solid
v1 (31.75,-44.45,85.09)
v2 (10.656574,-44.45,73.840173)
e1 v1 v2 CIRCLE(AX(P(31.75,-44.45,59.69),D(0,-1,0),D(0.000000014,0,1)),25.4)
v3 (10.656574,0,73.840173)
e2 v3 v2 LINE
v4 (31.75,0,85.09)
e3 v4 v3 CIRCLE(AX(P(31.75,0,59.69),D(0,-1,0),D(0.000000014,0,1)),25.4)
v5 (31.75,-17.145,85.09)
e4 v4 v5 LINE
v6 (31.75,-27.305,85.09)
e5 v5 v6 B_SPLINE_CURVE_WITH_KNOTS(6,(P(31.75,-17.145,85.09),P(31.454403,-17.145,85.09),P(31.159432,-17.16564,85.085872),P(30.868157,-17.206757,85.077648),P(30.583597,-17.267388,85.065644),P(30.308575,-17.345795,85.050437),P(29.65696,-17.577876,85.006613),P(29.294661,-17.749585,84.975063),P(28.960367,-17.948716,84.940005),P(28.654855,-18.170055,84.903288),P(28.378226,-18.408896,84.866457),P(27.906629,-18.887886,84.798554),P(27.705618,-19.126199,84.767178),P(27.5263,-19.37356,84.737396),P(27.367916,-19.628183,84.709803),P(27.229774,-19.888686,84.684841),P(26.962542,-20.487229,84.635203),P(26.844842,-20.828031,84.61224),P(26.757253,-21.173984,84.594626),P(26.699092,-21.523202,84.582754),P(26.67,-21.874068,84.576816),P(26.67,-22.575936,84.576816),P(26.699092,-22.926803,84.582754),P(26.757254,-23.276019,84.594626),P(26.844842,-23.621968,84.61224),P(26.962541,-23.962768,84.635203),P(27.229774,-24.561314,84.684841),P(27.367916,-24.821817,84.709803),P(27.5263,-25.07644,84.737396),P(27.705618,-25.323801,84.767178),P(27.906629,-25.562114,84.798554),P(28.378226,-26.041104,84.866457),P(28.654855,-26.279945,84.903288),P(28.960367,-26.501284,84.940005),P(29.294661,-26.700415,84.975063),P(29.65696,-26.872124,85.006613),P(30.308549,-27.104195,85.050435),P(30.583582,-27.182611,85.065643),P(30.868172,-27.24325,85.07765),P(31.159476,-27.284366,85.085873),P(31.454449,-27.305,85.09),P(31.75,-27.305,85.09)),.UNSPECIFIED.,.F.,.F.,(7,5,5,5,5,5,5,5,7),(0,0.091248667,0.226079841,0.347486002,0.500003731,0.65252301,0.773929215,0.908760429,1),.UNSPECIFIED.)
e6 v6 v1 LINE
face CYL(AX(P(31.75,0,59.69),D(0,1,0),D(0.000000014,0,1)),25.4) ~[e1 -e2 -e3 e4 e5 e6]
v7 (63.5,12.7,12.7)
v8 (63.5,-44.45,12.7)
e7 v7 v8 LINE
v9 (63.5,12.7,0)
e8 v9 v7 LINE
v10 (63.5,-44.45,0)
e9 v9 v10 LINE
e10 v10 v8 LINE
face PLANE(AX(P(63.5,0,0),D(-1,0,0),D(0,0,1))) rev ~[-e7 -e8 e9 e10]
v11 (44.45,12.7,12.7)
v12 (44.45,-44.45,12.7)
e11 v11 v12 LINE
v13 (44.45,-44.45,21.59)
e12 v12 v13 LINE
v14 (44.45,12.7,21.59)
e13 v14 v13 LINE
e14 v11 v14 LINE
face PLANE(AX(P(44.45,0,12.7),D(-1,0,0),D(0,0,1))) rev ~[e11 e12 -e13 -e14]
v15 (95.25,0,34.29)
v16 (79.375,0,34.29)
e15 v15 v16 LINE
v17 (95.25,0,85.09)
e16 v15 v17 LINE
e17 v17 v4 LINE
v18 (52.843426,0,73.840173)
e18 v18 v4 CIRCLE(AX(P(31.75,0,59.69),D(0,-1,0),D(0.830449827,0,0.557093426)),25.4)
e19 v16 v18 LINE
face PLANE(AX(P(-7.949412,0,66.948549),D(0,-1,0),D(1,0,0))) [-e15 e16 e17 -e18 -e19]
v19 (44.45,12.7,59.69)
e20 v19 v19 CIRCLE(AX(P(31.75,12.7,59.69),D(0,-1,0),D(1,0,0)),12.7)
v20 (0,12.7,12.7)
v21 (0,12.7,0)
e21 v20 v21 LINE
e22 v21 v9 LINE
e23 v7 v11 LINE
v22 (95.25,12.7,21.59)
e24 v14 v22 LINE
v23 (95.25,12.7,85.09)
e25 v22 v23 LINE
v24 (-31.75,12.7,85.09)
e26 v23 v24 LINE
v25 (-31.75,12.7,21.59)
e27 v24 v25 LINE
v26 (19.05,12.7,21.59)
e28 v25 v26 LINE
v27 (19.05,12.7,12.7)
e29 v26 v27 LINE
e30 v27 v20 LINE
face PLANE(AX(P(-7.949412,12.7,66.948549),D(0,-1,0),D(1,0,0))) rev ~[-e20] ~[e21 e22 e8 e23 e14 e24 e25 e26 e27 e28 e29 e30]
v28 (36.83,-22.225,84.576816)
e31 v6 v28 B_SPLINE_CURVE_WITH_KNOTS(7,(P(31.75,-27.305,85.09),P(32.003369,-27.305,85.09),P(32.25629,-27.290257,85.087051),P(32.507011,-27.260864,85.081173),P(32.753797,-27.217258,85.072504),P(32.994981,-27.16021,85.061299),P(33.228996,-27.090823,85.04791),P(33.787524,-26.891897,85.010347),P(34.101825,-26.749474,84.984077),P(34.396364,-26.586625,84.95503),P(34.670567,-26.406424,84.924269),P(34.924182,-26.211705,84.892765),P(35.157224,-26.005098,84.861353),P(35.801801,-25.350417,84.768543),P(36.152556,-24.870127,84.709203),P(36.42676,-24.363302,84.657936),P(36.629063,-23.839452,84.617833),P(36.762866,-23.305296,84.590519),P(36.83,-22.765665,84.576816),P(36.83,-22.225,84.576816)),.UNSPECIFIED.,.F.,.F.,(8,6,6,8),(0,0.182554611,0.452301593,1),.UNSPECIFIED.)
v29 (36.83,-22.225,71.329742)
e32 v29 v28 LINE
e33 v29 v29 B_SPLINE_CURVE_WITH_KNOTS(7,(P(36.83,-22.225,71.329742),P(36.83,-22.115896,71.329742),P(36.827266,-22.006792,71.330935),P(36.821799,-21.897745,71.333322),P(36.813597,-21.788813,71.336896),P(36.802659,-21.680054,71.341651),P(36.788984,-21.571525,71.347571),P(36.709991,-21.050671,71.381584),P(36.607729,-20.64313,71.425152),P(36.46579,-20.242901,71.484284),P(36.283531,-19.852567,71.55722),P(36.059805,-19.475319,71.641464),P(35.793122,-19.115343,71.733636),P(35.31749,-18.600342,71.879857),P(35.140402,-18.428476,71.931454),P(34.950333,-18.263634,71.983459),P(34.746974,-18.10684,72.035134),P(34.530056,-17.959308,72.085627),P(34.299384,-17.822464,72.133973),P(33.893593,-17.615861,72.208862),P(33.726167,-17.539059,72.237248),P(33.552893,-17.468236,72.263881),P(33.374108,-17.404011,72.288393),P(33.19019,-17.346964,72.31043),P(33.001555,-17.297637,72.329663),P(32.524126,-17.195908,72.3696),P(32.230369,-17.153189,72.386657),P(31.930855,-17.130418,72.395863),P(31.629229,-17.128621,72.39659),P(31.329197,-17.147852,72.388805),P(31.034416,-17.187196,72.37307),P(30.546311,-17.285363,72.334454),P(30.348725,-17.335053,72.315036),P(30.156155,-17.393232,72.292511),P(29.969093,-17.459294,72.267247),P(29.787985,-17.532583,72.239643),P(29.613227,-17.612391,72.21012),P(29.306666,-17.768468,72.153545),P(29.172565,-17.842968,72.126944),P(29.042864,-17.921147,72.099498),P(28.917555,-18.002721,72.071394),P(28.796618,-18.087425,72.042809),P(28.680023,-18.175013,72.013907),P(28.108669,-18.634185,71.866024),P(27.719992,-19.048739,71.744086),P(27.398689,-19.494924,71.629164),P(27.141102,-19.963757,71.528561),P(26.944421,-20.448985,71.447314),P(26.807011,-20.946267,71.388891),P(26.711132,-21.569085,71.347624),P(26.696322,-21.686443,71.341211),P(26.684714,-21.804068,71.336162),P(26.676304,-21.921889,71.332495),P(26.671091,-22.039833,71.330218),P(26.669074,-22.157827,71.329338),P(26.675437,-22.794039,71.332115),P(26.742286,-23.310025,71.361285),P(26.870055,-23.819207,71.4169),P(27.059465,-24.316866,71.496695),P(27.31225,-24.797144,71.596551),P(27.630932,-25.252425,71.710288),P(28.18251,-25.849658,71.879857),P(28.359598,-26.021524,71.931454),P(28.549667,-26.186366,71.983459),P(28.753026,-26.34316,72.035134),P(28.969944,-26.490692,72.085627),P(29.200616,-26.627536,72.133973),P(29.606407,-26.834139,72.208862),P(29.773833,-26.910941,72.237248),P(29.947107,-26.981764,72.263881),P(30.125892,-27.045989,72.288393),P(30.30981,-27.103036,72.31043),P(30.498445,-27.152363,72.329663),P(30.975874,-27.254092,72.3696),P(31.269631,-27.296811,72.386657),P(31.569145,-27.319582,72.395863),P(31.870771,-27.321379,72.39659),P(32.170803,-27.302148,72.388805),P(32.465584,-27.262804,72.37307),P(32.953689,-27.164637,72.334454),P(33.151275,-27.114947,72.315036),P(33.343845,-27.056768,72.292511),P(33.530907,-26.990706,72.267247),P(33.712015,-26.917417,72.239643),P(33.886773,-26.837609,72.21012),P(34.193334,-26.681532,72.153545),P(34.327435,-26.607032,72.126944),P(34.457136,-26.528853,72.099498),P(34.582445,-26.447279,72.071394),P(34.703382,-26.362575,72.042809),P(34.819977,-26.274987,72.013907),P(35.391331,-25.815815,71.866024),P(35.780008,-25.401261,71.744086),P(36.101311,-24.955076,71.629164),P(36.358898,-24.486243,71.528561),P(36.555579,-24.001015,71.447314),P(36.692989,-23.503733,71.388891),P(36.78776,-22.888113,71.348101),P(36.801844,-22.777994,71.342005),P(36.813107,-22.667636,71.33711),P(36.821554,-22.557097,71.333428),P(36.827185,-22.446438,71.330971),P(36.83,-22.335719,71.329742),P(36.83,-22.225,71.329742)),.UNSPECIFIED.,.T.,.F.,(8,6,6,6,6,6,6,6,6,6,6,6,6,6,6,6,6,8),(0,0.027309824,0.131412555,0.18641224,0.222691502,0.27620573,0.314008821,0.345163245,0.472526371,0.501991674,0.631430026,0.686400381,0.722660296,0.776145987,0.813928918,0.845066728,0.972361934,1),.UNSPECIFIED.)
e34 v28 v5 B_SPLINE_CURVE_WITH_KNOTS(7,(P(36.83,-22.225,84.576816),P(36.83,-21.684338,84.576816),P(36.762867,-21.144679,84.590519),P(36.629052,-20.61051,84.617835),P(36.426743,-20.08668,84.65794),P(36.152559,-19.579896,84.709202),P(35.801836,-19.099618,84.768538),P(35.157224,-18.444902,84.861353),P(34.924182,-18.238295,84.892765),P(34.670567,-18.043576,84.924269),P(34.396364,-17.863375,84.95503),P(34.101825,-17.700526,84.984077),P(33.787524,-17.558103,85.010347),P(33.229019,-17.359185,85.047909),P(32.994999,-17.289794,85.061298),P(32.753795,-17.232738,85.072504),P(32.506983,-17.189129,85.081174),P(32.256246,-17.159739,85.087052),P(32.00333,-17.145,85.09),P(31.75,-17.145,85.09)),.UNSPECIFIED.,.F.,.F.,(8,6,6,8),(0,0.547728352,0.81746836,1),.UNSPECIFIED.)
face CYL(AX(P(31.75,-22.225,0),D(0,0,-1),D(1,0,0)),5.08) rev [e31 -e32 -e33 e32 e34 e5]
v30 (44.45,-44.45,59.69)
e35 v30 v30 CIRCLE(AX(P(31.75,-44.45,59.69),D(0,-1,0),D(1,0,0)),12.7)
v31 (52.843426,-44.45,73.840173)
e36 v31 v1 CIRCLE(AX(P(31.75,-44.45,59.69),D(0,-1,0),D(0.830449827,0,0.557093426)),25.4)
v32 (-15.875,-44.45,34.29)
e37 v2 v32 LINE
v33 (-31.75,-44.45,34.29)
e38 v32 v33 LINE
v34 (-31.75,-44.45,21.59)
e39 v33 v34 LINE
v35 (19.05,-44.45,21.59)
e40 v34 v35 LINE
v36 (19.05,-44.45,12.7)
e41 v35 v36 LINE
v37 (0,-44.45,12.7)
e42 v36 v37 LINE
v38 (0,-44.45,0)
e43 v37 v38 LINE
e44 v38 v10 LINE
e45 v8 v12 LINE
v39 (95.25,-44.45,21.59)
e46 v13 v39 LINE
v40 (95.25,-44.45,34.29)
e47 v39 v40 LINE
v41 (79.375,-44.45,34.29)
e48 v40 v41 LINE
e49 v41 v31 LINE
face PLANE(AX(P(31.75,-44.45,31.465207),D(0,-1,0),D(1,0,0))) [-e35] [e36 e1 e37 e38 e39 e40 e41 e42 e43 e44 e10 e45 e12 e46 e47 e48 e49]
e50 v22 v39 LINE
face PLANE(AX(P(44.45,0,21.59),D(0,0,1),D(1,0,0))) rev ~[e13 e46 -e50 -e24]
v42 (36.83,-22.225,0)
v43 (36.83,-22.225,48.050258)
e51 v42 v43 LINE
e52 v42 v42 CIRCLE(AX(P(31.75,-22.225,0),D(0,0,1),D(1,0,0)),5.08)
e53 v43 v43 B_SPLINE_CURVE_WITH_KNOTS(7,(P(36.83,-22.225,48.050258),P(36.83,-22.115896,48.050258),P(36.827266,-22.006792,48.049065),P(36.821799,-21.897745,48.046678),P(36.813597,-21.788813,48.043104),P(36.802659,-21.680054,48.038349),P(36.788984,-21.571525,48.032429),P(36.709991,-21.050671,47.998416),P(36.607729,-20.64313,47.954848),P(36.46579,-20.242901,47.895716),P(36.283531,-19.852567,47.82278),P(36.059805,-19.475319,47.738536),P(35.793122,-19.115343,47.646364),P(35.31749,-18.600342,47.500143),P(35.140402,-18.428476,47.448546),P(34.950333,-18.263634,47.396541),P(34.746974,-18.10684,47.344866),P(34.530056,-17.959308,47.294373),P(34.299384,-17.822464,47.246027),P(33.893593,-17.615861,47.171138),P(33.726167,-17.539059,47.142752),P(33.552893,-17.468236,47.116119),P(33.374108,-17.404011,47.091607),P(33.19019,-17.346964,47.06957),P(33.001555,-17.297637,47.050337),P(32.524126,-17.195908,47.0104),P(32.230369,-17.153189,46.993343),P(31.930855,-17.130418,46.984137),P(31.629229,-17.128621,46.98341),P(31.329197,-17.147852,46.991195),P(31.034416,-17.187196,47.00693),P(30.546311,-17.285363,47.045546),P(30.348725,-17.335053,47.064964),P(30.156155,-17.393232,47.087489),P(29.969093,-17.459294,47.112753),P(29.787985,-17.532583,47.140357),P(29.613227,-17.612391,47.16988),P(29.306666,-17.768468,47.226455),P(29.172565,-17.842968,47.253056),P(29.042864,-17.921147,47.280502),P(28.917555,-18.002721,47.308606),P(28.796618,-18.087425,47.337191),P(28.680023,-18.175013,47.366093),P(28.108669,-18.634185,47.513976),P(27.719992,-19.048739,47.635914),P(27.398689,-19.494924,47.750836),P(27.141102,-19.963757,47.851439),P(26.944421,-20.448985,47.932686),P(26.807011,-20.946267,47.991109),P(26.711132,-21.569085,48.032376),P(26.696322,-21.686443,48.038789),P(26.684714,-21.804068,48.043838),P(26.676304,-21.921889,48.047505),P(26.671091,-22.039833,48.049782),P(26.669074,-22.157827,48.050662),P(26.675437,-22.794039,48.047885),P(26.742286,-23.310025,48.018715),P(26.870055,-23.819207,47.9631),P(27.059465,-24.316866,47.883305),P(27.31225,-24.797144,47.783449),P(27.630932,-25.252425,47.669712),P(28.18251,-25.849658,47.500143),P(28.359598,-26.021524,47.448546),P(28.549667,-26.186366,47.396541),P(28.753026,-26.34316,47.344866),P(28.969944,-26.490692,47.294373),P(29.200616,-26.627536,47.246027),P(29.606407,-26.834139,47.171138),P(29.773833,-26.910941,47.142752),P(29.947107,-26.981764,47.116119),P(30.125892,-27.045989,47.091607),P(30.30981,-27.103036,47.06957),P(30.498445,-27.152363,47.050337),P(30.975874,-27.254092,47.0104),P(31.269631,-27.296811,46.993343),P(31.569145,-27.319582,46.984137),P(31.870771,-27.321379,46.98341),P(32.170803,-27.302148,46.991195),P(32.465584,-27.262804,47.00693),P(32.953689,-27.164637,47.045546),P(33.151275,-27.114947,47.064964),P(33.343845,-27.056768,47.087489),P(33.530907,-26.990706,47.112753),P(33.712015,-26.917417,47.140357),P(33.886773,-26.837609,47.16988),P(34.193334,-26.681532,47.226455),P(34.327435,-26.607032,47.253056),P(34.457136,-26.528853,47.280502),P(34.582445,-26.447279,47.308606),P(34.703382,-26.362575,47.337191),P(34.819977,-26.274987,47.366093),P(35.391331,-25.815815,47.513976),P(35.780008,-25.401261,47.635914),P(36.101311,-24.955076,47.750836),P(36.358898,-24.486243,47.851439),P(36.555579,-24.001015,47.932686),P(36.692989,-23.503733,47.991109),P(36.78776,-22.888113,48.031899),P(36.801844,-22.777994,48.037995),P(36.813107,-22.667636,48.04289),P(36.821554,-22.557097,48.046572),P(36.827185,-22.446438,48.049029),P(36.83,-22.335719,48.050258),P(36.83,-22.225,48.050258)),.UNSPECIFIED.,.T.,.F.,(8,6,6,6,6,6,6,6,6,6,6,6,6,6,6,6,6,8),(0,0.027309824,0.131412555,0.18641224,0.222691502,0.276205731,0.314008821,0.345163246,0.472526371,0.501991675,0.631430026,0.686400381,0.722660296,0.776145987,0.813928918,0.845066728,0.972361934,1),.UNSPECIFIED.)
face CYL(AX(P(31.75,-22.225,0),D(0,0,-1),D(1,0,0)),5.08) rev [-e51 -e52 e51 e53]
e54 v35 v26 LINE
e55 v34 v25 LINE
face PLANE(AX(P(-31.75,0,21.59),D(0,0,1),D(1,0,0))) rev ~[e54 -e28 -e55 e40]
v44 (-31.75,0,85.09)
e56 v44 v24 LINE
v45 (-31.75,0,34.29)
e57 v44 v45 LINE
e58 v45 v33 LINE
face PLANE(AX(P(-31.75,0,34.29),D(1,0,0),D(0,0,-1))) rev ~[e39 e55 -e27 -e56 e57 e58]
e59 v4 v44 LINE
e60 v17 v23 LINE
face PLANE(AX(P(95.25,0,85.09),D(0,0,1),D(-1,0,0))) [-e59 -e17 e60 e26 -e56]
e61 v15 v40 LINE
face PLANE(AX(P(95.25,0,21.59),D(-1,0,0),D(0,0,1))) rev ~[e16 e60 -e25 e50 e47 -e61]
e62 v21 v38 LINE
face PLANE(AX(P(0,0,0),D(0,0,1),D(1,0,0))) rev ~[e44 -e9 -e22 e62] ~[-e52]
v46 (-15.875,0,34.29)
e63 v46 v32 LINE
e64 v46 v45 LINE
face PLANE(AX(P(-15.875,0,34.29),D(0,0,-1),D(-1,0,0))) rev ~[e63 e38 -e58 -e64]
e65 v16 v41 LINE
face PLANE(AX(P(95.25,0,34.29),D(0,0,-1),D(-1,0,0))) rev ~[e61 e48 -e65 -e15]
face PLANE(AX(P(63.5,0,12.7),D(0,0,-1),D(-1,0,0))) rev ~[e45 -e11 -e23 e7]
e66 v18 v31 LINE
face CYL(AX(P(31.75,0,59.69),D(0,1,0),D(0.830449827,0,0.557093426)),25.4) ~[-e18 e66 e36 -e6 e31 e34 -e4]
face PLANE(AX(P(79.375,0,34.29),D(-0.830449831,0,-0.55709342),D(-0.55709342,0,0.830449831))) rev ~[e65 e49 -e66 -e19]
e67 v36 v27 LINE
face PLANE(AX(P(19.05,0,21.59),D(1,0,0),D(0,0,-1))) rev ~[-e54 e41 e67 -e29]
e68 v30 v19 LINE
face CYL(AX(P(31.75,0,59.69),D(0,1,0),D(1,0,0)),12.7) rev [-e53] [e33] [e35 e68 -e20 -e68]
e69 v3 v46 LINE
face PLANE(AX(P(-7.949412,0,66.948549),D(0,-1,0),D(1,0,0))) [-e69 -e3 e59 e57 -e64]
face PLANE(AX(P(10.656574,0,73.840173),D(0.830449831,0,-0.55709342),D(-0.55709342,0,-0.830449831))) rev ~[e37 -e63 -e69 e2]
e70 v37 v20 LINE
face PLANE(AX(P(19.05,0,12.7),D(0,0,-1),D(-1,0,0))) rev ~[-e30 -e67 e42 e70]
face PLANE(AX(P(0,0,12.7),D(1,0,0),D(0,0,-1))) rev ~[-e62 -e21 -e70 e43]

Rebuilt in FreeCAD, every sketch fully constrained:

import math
import FreeCAD as App
import Part
import Sketcher
from FreeCAD import Vector
Q = App.Units.Quantity


def add_polygon(sketch, points):
    """Adds a closed chain of lines whose ends are joined by coincident constraints."""
    first, n = sketch.GeometryCount, len(points)
    for a, b in zip(points, points[1:] + points[:1]):
        sketch.addGeometry(Part.LineSegment(App.Vector(*a, 0), App.Vector(*b, 0)), False)
    for i in range(n):
        sketch.addConstraint(Sketcher.Constraint("Coincident", first + i, 2, first + (i + 1) % n, 1))

doc = App.newDocument("Part")
body = doc.addObject("PartDesign::Body", "Body")

# Sketch on XZ plane
sketch1 = doc.addObject("Sketcher::SketchObject", "Sketch")
body.addObject(sketch1)
sketch1.AttachmentSupport = (doc.XZ_Plane, [""])
sketch1.MapMode = "FlatFace"
add_polygon(sketch1, [(-32, 85), (-32, 22), (19, 22), (19, 13), (0, 13), (0, 0), (64, 0), (64, 13), (44, 13), (44, 22), (95, 22), (95, 85)])  # lines 0-11
sketch1.addGeometry(Part.Circle(Vector(32, 60, 0), Vector(0, 0, 1), 13), False)  # 12
sketch1.addConstraint([
    Sketcher.Constraint("Vertical", 0),
    Sketcher.Constraint("Horizontal", 1),
    Sketcher.Constraint("Vertical", 2),
    Sketcher.Constraint("Horizontal", 3),
    Sketcher.Constraint("Vertical", 4),
    Sketcher.Constraint("Horizontal", 5),
    Sketcher.Constraint("Vertical", 6),
    Sketcher.Constraint("Horizontal", 7),
    Sketcher.Constraint("Vertical", 8),
    Sketcher.Constraint("Horizontal", 9),
    Sketcher.Constraint("Vertical", 10),
    Sketcher.Constraint("Horizontal", 11),
    Sketcher.Constraint("Coincident", 4, 2, -1, 1),
    Sketcher.Constraint("Horizontal", 3, 2, 6, 2),
    Sketcher.Constraint("Horizontal", 1, 2, 8, 2),
    Sketcher.Constraint("Equal", 3, 7),
    Sketcher.Constraint("Equal", 1, 9),
    Sketcher.Constraint("Equal", 5, 0),
    Sketcher.Constraint("Diameter", 12, Q("1 in")),
    Sketcher.Constraint("DistanceX", 1, 1, 1, 2, Q("2 in")),
    Sketcher.Constraint("DistanceX", 11, 2, 11, 1, Q("5 in")),
    Sketcher.Constraint("DistanceX", 5, 1, 5, 2, Q("2.5 in")),
    Sketcher.Constraint("DistanceY", 4, 2, 4, 1, Q("0.5 in")),
    Sketcher.Constraint("DistanceY", 12, 3, 10, 2, Q("1 in")),
    Sketcher.Constraint("DistanceY", 2, 2, 2, 1, Q("0.35 in")),
    Sketcher.Constraint("DistanceX", 0, 2, 12, 3, Q("2.5 in")),
])
pad1 = doc.addObject("PartDesign::Pad", "Pad")
body.addObject(pad1)
pad1.Profile = sketch1
pad1.Length = Q("0.5 in")
pad1.Reversed = True

# Sketch on XZ plane
sketch2 = doc.addObject("Sketcher::SketchObject", "Sketch001")
body.addObject(sketch2)
sketch2.AttachmentSupport = (doc.XZ_Plane, [""])
sketch2.MapMode = "FlatFace"
sketch2.addGeometry([
    Part.LineSegment(Vector(0, 13, 0), Vector(0, 0, 0)),  # 0
    Part.LineSegment(Vector(0, 0, 0), Vector(64, 0, 0)),  # 1
    Part.LineSegment(Vector(64, 0, 0), Vector(64, 13, 0)),  # 2
    Part.LineSegment(Vector(64, 13, 0), Vector(44, 13, 0)),  # 3
    Part.LineSegment(Vector(44, 13, 0), Vector(44, 22, 0)),  # 4
    Part.LineSegment(Vector(44, 22, 0), Vector(95, 22, 0)),  # 5
    Part.LineSegment(Vector(95, 22, 0), Vector(95, 34, 0)),  # 6
    Part.LineSegment(Vector(95, 34, 0), Vector(79, 34, 0)),  # 7
    Part.LineSegment(Vector(79, 34, 0), Vector(53, 74, 0)),  # 8
    Part.ArcOfCircle(Part.Circle(Vector(32, 60, 0), Vector(0, 0, 1), 25), math.radians(34), math.radians(90)),  # 9
    Part.ArcOfCircle(Part.Circle(Vector(32, 60, 0), Vector(0, 0, 1), 25), math.radians(90), math.radians(146)),  # 10
    Part.LineSegment(Vector(11, 74, 0), Vector(-16, 34, 0)),  # 11
    Part.LineSegment(Vector(-16, 34, 0), Vector(-32, 34, 0)),  # 12
    Part.LineSegment(Vector(-32, 34, 0), Vector(-32, 22, 0)),  # 13
    Part.LineSegment(Vector(-32, 22, 0), Vector(19, 22, 0)),  # 14
    Part.LineSegment(Vector(19, 22, 0), Vector(19, 13, 0)),  # 15
    Part.LineSegment(Vector(19, 13, 0), Vector(0, 13, 0)),  # 16
    Part.Circle(Vector(32, 60, 0), Vector(0, 0, 1), 13),  # 17
], False)
sketch2.addConstraint([
    Sketcher.Constraint("Coincident", 0, 2, 1, 1),
    Sketcher.Constraint("Coincident", 1, 2, 2, 1),
    Sketcher.Constraint("Coincident", 2, 2, 3, 1),
    Sketcher.Constraint("Coincident", 3, 2, 4, 1),
    Sketcher.Constraint("Coincident", 4, 2, 5, 1),
    Sketcher.Constraint("Coincident", 5, 2, 6, 1),
    Sketcher.Constraint("Coincident", 6, 2, 7, 1),
    Sketcher.Constraint("Coincident", 7, 2, 8, 1),
    Sketcher.Constraint("Tangent", 8, 2, 9, 1),
    Sketcher.Constraint("Tangent", 9, 2, 10, 1),
    Sketcher.Constraint("Tangent", 10, 2, 11, 1),
    Sketcher.Constraint("Coincident", 11, 2, 12, 1),
    Sketcher.Constraint("Coincident", 12, 2, 13, 1),
    Sketcher.Constraint("Coincident", 13, 2, 14, 1),
    Sketcher.Constraint("Coincident", 14, 2, 15, 1),
    Sketcher.Constraint("Coincident", 15, 2, 16, 1),
    Sketcher.Constraint("Coincident", 16, 2, 0, 1),
    Sketcher.Constraint("Vertical", 0),
    Sketcher.Constraint("Horizontal", 1),
    Sketcher.Constraint("Vertical", 2),
    Sketcher.Constraint("Horizontal", 3),
    Sketcher.Constraint("Vertical", 4),
    Sketcher.Constraint("Horizontal", 5),
    Sketcher.Constraint("Vertical", 6),
    Sketcher.Constraint("Horizontal", 7),
    Sketcher.Constraint("Horizontal", 12),
    Sketcher.Constraint("Vertical", 13),
    Sketcher.Constraint("Horizontal", 14),
    Sketcher.Constraint("Vertical", 15),
    Sketcher.Constraint("Horizontal", 16),
    Sketcher.Constraint("Coincident", 0, 2, -1, 1),
    Sketcher.Constraint("Coincident", 17, 3, 9, 3),
    Sketcher.Constraint("Equal", 9, 10),
    Sketcher.Constraint("Horizontal", 8, 2, 10, 2),
    Sketcher.Constraint("Horizontal", 7, 2, 11, 2),
    Sketcher.Constraint("Horizontal", 5, 2, 13, 2),
    Sketcher.Constraint("Horizontal", 3, 2, 15, 2),
    Sketcher.Constraint("Vertical", 17, 3, 9, 2),
    Sketcher.Constraint("Equal", 7, 12),
    Sketcher.Constraint("Equal", 5, 14),
    Sketcher.Constraint("Equal", 3, 16),
    Sketcher.Constraint("Equal", 2, 6),
    Sketcher.Constraint("Diameter", 17, Q("1 in")),
    Sketcher.Constraint("Radius", 9, Q("1 in")),
    Sketcher.Constraint("DistanceX", 5, 1, 5, 2, Q("2 in")),
    Sketcher.Constraint("DistanceX", 1, 1, 1, 2, Q("2.5 in")),
    Sketcher.Constraint("DistanceY", 0, 2, 0, 1, Q("0.5 in")),
    Sketcher.Constraint("DistanceY", 11, 2, 10, 3, Q("1 in")),
    Sketcher.Constraint("DistanceX", 14, 2, 4, 2, Q("1 in")),
    Sketcher.Constraint("DistanceY", 4, 1, 4, 2, Q("0.35 in")),
    Sketcher.Constraint("DistanceX", 7, 2, 7, 1, Q("0.625 in")),
])
pad2 = doc.addObject("PartDesign::Pad", "Pad001")
body.addObject(pad2)
pad2.Profile = sketch2
pad2.Length = Q("1.75 in")

# Sketch on XY plane
sketch3 = doc.addObject("Sketcher::SketchObject", "Sketch002")
body.addObject(sketch3)
sketch3.AttachmentSupport = (doc.XY_Plane, [""])
sketch3.MapMode = "FlatFace"
sketch3.addGeometry(Part.Circle(Vector(32, -22, 0), Vector(0, 0, 1), 5), False)
sketch3.addConstraint([
    Sketcher.Constraint("Diameter", 0, Q("0.4 in")),
    Sketcher.Constraint("DistanceX", -1, 1, 0, 3, Q("1.25 in")),
    Sketcher.Constraint("DistanceY", 0, 3, -1, 1, Q("0.875 in")),
])
pocket1 = doc.addObject("PartDesign::Pocket", "Pocket")
body.addObject(pocket1)
pocket1.Profile = sketch3
pocket1.Length = Q("7.85 in")
pocket1.Reversed = True

doc.recompute()
